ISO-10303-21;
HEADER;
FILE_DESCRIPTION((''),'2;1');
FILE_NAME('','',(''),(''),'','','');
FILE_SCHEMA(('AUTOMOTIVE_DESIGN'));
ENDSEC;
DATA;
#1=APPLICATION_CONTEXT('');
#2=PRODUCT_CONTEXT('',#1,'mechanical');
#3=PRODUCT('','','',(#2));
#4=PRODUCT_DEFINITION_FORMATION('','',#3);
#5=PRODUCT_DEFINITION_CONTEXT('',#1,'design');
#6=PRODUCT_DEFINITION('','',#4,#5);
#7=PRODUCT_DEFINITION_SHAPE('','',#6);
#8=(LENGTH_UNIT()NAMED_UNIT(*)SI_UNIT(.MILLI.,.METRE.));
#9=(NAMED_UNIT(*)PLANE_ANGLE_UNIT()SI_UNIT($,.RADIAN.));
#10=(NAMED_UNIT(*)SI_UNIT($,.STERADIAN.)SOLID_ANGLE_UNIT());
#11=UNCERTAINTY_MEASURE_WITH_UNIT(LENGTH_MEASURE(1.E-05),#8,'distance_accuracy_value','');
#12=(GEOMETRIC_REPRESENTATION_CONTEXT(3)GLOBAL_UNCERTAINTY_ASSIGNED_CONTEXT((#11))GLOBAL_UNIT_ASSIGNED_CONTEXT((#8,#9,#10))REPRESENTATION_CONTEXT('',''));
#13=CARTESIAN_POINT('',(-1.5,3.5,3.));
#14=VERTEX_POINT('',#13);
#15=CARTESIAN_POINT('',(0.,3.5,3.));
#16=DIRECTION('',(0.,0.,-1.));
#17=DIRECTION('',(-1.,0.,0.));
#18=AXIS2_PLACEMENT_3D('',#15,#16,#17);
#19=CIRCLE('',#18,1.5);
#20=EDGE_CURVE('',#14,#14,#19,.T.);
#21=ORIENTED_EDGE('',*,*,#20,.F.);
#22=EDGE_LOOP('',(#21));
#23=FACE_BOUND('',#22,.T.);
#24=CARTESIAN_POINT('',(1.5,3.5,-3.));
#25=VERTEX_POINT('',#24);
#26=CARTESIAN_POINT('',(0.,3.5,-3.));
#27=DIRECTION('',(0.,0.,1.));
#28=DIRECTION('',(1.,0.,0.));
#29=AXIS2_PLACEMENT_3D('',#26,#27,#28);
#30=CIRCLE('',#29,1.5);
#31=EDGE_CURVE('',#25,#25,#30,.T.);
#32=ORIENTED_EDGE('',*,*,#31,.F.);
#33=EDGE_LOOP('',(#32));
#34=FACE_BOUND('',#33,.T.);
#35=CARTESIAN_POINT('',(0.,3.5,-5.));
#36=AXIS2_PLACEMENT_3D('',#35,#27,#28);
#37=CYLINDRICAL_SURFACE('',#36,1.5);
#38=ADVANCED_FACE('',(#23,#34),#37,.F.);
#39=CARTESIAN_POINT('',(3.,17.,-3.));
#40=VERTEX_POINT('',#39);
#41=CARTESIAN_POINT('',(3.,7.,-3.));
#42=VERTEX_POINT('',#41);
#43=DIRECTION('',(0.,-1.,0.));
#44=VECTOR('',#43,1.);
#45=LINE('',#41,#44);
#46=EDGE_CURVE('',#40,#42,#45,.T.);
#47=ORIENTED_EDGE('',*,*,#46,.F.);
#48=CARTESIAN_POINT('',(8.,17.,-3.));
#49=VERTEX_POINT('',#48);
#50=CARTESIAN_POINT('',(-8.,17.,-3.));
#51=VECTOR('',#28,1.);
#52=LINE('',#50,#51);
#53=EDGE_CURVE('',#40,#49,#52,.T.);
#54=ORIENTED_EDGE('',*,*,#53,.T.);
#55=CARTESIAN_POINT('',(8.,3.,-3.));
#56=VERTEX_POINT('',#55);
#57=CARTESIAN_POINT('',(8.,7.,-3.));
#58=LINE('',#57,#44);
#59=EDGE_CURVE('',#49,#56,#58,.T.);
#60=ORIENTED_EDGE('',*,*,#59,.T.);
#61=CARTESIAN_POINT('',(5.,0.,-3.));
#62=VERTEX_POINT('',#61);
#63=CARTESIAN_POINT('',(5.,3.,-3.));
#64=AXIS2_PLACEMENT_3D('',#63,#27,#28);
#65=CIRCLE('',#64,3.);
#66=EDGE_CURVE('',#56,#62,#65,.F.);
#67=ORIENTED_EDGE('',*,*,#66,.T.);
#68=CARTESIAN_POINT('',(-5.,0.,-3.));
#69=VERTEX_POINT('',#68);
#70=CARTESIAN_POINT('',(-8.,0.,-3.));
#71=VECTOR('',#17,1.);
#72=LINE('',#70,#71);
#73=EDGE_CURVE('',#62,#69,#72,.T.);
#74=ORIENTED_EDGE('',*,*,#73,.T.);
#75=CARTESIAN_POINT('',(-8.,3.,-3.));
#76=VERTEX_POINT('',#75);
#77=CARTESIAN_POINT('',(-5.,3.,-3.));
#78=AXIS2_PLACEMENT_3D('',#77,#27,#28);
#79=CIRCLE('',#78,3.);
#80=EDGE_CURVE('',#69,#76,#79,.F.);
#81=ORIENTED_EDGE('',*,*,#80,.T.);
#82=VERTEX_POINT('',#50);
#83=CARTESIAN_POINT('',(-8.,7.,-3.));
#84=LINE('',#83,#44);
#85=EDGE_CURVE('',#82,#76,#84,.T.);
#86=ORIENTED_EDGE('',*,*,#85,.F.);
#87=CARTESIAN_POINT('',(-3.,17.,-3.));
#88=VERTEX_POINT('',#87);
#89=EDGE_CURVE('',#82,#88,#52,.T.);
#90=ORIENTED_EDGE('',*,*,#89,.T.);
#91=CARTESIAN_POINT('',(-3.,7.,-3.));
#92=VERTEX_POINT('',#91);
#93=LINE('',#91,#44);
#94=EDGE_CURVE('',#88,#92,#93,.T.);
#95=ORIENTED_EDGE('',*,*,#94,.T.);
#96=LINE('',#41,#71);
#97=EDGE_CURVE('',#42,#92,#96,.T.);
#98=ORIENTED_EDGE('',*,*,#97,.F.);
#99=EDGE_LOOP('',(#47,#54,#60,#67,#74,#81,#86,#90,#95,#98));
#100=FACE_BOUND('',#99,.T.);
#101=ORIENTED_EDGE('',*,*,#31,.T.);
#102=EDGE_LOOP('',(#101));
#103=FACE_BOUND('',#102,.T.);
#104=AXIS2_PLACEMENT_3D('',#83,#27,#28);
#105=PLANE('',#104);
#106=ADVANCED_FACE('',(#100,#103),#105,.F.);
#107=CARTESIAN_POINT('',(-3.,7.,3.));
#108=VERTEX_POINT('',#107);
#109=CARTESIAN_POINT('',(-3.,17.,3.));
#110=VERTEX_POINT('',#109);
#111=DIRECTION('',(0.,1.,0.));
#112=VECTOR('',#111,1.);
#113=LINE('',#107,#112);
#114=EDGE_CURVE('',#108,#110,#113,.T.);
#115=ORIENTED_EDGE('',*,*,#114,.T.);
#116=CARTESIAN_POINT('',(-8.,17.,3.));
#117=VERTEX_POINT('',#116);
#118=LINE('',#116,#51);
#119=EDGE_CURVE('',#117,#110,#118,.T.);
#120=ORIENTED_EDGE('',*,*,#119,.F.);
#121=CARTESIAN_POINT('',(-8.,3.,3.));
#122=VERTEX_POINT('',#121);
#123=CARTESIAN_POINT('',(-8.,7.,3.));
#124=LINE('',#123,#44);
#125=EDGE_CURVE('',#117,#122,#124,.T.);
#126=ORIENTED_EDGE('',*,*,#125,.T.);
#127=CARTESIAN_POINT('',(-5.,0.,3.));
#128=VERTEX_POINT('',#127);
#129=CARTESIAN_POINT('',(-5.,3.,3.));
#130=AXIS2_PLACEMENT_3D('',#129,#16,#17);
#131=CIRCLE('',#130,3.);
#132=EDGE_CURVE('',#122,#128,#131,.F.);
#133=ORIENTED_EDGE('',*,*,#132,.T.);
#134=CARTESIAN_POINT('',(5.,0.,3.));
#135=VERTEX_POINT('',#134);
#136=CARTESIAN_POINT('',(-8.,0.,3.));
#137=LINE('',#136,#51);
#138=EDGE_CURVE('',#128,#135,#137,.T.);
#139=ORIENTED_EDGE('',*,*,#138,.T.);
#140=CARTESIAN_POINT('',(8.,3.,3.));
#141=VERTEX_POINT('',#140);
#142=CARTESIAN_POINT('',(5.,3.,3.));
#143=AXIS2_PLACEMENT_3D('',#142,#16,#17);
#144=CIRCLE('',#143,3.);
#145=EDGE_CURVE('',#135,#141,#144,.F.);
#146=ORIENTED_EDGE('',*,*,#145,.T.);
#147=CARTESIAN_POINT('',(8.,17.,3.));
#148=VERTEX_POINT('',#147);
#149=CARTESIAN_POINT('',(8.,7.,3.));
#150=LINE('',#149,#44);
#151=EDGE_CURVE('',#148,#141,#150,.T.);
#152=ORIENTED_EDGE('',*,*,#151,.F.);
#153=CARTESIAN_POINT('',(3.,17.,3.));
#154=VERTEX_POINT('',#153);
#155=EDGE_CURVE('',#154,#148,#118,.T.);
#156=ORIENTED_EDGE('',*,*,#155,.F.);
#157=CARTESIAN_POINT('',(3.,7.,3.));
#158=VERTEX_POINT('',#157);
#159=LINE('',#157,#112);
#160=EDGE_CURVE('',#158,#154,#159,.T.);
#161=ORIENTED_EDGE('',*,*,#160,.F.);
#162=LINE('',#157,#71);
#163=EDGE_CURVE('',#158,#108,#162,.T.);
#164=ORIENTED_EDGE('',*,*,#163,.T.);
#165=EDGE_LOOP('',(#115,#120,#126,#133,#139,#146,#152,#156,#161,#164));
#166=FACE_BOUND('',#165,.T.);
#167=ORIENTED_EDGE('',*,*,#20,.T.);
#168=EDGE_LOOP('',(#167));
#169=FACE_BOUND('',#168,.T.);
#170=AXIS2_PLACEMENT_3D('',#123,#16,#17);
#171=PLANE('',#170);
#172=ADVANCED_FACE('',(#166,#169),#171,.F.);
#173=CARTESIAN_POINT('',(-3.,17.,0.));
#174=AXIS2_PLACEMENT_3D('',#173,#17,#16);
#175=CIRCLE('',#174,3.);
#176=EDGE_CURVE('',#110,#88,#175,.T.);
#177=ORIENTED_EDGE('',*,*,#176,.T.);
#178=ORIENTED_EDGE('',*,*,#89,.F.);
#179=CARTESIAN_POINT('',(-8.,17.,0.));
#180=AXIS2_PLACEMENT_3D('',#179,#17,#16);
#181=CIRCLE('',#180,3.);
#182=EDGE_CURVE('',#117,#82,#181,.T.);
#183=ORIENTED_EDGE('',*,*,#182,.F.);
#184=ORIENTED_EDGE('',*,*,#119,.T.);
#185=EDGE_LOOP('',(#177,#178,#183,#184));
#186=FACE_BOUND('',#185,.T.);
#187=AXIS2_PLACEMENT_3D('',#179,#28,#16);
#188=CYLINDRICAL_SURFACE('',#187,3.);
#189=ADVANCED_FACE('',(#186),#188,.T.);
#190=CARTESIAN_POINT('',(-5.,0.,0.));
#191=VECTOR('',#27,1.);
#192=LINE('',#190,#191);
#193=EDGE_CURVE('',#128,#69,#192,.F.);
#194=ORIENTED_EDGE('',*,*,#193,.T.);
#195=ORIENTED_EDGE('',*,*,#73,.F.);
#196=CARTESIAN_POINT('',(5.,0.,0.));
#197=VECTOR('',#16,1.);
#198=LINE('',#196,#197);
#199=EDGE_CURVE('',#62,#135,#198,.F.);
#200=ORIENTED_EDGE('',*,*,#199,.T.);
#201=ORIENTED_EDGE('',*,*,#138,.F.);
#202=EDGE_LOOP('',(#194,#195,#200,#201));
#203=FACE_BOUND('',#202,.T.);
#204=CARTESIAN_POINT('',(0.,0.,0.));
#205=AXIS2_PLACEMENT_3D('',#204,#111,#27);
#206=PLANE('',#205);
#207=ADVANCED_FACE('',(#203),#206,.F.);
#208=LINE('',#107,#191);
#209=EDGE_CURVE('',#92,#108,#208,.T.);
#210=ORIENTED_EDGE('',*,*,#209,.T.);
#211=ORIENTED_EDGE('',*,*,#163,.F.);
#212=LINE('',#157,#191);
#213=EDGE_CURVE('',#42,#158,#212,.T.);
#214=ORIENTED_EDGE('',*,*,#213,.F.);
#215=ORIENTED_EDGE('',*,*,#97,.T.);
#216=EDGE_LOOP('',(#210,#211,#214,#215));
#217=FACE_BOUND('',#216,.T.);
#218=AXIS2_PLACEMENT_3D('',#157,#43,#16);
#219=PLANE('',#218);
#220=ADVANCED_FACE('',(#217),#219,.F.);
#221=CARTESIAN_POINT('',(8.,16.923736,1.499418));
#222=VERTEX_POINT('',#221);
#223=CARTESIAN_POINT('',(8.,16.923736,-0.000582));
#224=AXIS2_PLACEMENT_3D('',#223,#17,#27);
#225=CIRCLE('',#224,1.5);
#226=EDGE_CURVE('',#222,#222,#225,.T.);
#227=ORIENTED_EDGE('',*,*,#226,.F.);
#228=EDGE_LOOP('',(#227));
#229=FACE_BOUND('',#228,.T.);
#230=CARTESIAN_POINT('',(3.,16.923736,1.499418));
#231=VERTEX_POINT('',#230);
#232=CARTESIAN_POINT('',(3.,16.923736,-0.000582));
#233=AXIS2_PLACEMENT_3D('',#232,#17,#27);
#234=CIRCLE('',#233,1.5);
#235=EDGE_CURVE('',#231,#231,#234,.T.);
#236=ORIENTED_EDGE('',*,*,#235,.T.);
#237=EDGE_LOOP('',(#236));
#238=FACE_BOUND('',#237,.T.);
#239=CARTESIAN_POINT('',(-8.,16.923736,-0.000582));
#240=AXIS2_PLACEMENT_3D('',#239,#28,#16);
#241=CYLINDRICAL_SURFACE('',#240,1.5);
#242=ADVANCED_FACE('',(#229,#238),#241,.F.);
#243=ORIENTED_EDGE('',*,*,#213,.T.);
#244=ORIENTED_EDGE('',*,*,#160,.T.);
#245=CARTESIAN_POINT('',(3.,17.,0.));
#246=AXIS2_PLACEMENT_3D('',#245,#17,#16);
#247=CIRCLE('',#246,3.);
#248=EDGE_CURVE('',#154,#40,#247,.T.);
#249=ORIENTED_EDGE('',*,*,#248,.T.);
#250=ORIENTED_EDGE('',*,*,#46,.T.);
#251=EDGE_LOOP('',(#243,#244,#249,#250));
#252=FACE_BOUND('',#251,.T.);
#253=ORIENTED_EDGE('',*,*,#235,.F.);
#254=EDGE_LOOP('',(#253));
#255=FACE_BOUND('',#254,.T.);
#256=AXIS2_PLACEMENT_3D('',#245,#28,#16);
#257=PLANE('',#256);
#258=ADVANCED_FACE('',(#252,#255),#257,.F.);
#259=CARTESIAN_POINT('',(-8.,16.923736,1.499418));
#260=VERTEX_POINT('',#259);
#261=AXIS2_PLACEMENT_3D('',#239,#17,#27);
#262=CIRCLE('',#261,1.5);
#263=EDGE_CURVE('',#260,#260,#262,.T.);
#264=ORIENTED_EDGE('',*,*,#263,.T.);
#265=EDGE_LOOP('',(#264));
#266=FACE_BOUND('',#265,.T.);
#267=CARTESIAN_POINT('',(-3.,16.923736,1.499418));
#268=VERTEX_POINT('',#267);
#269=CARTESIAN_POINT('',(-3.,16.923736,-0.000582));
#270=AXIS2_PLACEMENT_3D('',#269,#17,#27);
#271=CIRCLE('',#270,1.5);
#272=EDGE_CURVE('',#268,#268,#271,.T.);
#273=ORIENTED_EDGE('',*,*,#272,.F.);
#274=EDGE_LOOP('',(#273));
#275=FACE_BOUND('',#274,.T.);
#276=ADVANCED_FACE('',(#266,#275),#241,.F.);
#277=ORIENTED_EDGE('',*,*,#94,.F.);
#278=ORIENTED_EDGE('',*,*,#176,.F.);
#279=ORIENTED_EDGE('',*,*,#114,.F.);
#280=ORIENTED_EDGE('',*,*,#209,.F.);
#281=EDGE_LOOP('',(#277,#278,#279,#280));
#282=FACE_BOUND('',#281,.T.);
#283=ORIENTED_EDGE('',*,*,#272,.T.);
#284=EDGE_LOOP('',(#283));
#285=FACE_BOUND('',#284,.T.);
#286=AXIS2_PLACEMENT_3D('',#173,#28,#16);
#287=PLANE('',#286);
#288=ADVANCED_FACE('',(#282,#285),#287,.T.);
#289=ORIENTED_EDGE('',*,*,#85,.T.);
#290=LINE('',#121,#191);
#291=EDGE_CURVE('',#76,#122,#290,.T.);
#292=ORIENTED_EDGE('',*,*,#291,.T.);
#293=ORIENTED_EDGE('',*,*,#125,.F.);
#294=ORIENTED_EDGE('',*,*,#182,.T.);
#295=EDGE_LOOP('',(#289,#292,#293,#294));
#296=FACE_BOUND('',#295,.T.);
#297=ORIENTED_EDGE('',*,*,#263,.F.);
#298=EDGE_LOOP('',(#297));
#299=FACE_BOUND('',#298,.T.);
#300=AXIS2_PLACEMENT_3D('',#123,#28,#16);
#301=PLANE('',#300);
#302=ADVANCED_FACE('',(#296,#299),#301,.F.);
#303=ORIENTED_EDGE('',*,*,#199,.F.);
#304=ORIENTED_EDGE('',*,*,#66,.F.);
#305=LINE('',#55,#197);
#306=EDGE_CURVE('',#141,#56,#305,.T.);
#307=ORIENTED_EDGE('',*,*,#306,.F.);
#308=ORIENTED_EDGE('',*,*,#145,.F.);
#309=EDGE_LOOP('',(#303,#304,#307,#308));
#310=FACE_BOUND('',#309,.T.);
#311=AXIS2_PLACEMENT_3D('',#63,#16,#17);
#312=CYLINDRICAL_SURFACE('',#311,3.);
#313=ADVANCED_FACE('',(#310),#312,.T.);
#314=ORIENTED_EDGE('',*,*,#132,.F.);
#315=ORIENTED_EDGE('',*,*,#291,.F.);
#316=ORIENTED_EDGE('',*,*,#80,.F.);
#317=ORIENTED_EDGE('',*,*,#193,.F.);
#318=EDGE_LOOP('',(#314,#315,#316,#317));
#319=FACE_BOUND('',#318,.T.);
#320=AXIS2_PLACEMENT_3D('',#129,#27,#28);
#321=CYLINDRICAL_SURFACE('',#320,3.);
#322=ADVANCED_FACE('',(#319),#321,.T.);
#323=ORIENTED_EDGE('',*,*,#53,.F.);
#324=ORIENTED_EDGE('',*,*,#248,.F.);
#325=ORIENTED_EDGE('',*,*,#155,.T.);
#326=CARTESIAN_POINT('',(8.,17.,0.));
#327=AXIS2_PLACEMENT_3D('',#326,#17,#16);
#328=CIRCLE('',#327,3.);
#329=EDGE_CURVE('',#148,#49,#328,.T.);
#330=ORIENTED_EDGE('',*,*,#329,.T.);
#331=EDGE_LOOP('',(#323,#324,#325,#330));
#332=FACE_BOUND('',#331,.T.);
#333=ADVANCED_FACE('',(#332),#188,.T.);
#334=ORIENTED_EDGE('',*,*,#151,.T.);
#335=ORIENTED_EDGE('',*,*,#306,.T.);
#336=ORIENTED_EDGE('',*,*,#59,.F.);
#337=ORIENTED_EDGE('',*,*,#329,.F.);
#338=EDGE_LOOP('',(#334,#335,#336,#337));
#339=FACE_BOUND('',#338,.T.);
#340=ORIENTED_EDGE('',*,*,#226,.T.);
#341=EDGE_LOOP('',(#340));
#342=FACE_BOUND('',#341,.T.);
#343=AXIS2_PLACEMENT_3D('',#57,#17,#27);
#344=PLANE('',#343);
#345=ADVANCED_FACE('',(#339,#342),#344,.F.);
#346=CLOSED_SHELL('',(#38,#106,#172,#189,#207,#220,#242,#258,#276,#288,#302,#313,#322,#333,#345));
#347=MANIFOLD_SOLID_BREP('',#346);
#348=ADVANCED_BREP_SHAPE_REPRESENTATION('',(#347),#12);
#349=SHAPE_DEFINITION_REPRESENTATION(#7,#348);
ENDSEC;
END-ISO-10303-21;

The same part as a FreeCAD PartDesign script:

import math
import FreeCAD as App
import Part
import Sketcher
from FreeCAD import Vector
Q = App.Units.Quantity


def edges_at(feature, points):
    """Names of the edges that pass closest to the given points."""
    edges = feature.Shape.Edges
    near = lambda p: min(range(len(edges)), key=lambda i: edges[i].distToShape(Part.Vertex(*p))[0])
    return sorted({f"Edge{near(p) + 1}" for p in points})

doc = App.newDocument("Part")
body = doc.addObject("PartDesign::Body", "Body")

sketch1 = body.newObject("Sketcher::SketchObject", "Sketch")
sketch1.AttachmentSupport = (doc.getObject("XZ_Plane"), [""])
sketch1.MapMode = "FlatFace"
sketch1.addGeometry([
    Part.LineSegment(Vector(-8, -3, 0), Vector(-8, 3, 0)),
    Part.LineSegment(Vector(-8, 3, 0), Vector(8, 3, 0)),
    Part.LineSegment(Vector(8, 3, 0), Vector(8, -3, 0)),
    Part.LineSegment(Vector(8, -3, 0), Vector(-8, -3, 0)),
], False)
sketch1.addConstraint([
    Sketcher.Constraint("Coincident", 0, 2, 1, 1),
    Sketcher.Constraint("Coincident", 1, 2, 2, 1),
    Sketcher.Constraint("Coincident", 2, 2, 3, 1),
    Sketcher.Constraint("Coincident", 3, 2, 0, 1),
    Sketcher.Constraint("Vertical", 0),
    Sketcher.Constraint("Horizontal", 1),
    Sketcher.Constraint("Vertical", 2),
    Sketcher.Constraint("Horizontal", 3),
    Sketcher.Constraint("Symmetric", 0, 2, 2, 2, -1, 1),
    Sketcher.Constraint("DistanceX", 1, 1, 1, 2, Q("16 mm")),
    Sketcher.Constraint("DistanceY", 0, 1, 0, 2, Q("6 mm")),
])
pad1 = body.newObject("PartDesign::Pad", "Pad")
pad1.Profile = sketch1
pad1.Length = 7
pad1.Reversed = True

sketch2 = body.newObject("Sketcher::SketchObject", "Sketch001")
sketch2.AttachmentSupport = (doc.getObject("YZ_Plane"), [""])
sketch2.MapMode = "FlatFace"
sketch2.addGeometry([
    Part.LineSegment(Vector(7, -3, 0), Vector(7, 3, 0)),
    Part.LineSegment(Vector(7, 3, 0), Vector(17, 3, 0)),
    Part.ArcOfCircle(Part.Circle(Vector(17, 0, 0), Vector(0, 0, 1), 3), math.radians(-90), math.radians(90)),
    Part.LineSegment(Vector(17, -3, 0), Vector(7, -3, 0)),
    Part.Circle(Vector(16.9, 0, 0), Vector(0, 0, 1), 1.5),
], False)
sketch2.addConstraint([
    Sketcher.Constraint("Coincident", 0, 2, 1, 1),
    Sketcher.Constraint("Tangent", 1, 2, 2, 2),
    Sketcher.Constraint("Tangent", 2, 1, 3, 1),
    Sketcher.Constraint("Coincident", 3, 2, 0, 1),
    Sketcher.Constraint("Vertical", 0),
    Sketcher.Constraint("Horizontal", 1),
    Sketcher.Constraint("Horizontal", 3),
    Sketcher.Constraint("PointOnObject", 2, 3, -1),
    Sketcher.Constraint("Diameter", 4, Q("3 mm")),
    Sketcher.Constraint("Radius", 2, Q("3 mm")),
    Sketcher.Constraint("DistanceX", 1, 1, 1, 2, Q("10 mm")),
    Sketcher.Constraint("DistanceX", -1, 1, 2, 3, Q("17 mm")),
    Sketcher.Constraint("DistanceY", 4, 3, -1, 1, Q("0.000582 mm")),
    Sketcher.Constraint("DistanceX", -1, 1, 4, 3, Q("16.923736 mm")),
])
pad2 = body.newObject("PartDesign::Pad", "Pad001")
pad2.Profile = sketch2
pad2.Length = 16
pad2.Midplane = True

sketch3 = body.newObject("Sketcher::SketchObject", "Sketch002")
sketch3.AttachmentSupport = (doc.getObject("YZ_Plane"), [""])
sketch3.MapMode = "FlatFace"
sketch3.addGeometry([
    Part.LineSegment(Vector(7, -3, 0), Vector(7, 3, 0)),
    Part.LineSegment(Vector(7, 3, 0), Vector(17, 3, 0)),
    Part.ArcOfCircle(Part.Circle(Vector(17, 0, 0), Vector(0, 0, 1), 3), math.radians(-90), math.radians(90)),
    Part.LineSegment(Vector(17, -3, 0), Vector(7, -3, 0)),
    Part.Circle(Vector(16.9, 0, 0), Vector(0, 0, 1), 1.5),
], False)
sketch3.addConstraint([
    Sketcher.Constraint("Coincident", 0, 2, 1, 1),
    Sketcher.Constraint("Tangent", 1, 2, 2, 2),
    Sketcher.Constraint("Tangent", 2, 1, 3, 1),
    Sketcher.Constraint("Coincident", 3, 2, 0, 1),
    Sketcher.Constraint("Vertical", 0),
    Sketcher.Constraint("Horizontal", 1),
    Sketcher.Constraint("Horizontal", 3),
    Sketcher.Constraint("PointOnObject", 2, 3, -1),
    Sketcher.Constraint("Diameter", 4, Q("3 mm")),
    Sketcher.Constraint("Radius", 2, Q("3 mm")),
    Sketcher.Constraint("DistanceX", 1, 1, 1, 2, Q("10 mm")),
    Sketcher.Constraint("DistanceX", -1, 1, 2, 3, Q("17 mm")),
    Sketcher.Constraint("DistanceY", 4, 3, -1, 1, Q("0.000582 mm")),
    Sketcher.Constraint("DistanceX", -1, 1, 4, 3, Q("16.923736 mm")),
])
pocket1 = body.newObject("PartDesign::Pocket", "Pocket")
pocket1.Profile = sketch3
pocket1.Length = 6
pocket1.Midplane = True

sketch4 = body.newObject("Sketcher::SketchObject", "Sketch003")
sketch4.AttachmentSupport = (doc.getObject("XY_Plane"), [""])
sketch4.MapMode = "FlatFace"
sketch4.AttachmentOffset = App.Placement(Vector(0, 0, 5), App.Rotation())
sketch4.addGeometry(Part.Circle(Vector(0, 3.5, 0), Vector(0, 0, 1), 1.5), False)
sketch4.addConstraint([
    Sketcher.Constraint("PointOnObject", 0, 3, -2),
    Sketcher.Constraint("Diameter", 0, Q("3 mm")),
    Sketcher.Constraint("DistanceY", -1, 1, 0, 3, Q("3.5 mm")),
])
pocket2 = body.newObject("PartDesign::Pocket", "Pocket001")
pocket2.Profile = sketch4
pocket2.Length = 10
doc.recompute()

fillet = body.newObject("PartDesign::Fillet", "Fillet")
fillet.Base = (pocket2, edges_at(pocket2, [(8, 0, 0)]))
fillet.Radius = 3
doc.recompute()

fillet2 = body.newObject("PartDesign::Fillet", "Fillet001")
fillet2.Base = (fillet, edges_at(fillet, [(-8, 0, 0)]))
fillet2.Radius = 3

doc.recompute()
